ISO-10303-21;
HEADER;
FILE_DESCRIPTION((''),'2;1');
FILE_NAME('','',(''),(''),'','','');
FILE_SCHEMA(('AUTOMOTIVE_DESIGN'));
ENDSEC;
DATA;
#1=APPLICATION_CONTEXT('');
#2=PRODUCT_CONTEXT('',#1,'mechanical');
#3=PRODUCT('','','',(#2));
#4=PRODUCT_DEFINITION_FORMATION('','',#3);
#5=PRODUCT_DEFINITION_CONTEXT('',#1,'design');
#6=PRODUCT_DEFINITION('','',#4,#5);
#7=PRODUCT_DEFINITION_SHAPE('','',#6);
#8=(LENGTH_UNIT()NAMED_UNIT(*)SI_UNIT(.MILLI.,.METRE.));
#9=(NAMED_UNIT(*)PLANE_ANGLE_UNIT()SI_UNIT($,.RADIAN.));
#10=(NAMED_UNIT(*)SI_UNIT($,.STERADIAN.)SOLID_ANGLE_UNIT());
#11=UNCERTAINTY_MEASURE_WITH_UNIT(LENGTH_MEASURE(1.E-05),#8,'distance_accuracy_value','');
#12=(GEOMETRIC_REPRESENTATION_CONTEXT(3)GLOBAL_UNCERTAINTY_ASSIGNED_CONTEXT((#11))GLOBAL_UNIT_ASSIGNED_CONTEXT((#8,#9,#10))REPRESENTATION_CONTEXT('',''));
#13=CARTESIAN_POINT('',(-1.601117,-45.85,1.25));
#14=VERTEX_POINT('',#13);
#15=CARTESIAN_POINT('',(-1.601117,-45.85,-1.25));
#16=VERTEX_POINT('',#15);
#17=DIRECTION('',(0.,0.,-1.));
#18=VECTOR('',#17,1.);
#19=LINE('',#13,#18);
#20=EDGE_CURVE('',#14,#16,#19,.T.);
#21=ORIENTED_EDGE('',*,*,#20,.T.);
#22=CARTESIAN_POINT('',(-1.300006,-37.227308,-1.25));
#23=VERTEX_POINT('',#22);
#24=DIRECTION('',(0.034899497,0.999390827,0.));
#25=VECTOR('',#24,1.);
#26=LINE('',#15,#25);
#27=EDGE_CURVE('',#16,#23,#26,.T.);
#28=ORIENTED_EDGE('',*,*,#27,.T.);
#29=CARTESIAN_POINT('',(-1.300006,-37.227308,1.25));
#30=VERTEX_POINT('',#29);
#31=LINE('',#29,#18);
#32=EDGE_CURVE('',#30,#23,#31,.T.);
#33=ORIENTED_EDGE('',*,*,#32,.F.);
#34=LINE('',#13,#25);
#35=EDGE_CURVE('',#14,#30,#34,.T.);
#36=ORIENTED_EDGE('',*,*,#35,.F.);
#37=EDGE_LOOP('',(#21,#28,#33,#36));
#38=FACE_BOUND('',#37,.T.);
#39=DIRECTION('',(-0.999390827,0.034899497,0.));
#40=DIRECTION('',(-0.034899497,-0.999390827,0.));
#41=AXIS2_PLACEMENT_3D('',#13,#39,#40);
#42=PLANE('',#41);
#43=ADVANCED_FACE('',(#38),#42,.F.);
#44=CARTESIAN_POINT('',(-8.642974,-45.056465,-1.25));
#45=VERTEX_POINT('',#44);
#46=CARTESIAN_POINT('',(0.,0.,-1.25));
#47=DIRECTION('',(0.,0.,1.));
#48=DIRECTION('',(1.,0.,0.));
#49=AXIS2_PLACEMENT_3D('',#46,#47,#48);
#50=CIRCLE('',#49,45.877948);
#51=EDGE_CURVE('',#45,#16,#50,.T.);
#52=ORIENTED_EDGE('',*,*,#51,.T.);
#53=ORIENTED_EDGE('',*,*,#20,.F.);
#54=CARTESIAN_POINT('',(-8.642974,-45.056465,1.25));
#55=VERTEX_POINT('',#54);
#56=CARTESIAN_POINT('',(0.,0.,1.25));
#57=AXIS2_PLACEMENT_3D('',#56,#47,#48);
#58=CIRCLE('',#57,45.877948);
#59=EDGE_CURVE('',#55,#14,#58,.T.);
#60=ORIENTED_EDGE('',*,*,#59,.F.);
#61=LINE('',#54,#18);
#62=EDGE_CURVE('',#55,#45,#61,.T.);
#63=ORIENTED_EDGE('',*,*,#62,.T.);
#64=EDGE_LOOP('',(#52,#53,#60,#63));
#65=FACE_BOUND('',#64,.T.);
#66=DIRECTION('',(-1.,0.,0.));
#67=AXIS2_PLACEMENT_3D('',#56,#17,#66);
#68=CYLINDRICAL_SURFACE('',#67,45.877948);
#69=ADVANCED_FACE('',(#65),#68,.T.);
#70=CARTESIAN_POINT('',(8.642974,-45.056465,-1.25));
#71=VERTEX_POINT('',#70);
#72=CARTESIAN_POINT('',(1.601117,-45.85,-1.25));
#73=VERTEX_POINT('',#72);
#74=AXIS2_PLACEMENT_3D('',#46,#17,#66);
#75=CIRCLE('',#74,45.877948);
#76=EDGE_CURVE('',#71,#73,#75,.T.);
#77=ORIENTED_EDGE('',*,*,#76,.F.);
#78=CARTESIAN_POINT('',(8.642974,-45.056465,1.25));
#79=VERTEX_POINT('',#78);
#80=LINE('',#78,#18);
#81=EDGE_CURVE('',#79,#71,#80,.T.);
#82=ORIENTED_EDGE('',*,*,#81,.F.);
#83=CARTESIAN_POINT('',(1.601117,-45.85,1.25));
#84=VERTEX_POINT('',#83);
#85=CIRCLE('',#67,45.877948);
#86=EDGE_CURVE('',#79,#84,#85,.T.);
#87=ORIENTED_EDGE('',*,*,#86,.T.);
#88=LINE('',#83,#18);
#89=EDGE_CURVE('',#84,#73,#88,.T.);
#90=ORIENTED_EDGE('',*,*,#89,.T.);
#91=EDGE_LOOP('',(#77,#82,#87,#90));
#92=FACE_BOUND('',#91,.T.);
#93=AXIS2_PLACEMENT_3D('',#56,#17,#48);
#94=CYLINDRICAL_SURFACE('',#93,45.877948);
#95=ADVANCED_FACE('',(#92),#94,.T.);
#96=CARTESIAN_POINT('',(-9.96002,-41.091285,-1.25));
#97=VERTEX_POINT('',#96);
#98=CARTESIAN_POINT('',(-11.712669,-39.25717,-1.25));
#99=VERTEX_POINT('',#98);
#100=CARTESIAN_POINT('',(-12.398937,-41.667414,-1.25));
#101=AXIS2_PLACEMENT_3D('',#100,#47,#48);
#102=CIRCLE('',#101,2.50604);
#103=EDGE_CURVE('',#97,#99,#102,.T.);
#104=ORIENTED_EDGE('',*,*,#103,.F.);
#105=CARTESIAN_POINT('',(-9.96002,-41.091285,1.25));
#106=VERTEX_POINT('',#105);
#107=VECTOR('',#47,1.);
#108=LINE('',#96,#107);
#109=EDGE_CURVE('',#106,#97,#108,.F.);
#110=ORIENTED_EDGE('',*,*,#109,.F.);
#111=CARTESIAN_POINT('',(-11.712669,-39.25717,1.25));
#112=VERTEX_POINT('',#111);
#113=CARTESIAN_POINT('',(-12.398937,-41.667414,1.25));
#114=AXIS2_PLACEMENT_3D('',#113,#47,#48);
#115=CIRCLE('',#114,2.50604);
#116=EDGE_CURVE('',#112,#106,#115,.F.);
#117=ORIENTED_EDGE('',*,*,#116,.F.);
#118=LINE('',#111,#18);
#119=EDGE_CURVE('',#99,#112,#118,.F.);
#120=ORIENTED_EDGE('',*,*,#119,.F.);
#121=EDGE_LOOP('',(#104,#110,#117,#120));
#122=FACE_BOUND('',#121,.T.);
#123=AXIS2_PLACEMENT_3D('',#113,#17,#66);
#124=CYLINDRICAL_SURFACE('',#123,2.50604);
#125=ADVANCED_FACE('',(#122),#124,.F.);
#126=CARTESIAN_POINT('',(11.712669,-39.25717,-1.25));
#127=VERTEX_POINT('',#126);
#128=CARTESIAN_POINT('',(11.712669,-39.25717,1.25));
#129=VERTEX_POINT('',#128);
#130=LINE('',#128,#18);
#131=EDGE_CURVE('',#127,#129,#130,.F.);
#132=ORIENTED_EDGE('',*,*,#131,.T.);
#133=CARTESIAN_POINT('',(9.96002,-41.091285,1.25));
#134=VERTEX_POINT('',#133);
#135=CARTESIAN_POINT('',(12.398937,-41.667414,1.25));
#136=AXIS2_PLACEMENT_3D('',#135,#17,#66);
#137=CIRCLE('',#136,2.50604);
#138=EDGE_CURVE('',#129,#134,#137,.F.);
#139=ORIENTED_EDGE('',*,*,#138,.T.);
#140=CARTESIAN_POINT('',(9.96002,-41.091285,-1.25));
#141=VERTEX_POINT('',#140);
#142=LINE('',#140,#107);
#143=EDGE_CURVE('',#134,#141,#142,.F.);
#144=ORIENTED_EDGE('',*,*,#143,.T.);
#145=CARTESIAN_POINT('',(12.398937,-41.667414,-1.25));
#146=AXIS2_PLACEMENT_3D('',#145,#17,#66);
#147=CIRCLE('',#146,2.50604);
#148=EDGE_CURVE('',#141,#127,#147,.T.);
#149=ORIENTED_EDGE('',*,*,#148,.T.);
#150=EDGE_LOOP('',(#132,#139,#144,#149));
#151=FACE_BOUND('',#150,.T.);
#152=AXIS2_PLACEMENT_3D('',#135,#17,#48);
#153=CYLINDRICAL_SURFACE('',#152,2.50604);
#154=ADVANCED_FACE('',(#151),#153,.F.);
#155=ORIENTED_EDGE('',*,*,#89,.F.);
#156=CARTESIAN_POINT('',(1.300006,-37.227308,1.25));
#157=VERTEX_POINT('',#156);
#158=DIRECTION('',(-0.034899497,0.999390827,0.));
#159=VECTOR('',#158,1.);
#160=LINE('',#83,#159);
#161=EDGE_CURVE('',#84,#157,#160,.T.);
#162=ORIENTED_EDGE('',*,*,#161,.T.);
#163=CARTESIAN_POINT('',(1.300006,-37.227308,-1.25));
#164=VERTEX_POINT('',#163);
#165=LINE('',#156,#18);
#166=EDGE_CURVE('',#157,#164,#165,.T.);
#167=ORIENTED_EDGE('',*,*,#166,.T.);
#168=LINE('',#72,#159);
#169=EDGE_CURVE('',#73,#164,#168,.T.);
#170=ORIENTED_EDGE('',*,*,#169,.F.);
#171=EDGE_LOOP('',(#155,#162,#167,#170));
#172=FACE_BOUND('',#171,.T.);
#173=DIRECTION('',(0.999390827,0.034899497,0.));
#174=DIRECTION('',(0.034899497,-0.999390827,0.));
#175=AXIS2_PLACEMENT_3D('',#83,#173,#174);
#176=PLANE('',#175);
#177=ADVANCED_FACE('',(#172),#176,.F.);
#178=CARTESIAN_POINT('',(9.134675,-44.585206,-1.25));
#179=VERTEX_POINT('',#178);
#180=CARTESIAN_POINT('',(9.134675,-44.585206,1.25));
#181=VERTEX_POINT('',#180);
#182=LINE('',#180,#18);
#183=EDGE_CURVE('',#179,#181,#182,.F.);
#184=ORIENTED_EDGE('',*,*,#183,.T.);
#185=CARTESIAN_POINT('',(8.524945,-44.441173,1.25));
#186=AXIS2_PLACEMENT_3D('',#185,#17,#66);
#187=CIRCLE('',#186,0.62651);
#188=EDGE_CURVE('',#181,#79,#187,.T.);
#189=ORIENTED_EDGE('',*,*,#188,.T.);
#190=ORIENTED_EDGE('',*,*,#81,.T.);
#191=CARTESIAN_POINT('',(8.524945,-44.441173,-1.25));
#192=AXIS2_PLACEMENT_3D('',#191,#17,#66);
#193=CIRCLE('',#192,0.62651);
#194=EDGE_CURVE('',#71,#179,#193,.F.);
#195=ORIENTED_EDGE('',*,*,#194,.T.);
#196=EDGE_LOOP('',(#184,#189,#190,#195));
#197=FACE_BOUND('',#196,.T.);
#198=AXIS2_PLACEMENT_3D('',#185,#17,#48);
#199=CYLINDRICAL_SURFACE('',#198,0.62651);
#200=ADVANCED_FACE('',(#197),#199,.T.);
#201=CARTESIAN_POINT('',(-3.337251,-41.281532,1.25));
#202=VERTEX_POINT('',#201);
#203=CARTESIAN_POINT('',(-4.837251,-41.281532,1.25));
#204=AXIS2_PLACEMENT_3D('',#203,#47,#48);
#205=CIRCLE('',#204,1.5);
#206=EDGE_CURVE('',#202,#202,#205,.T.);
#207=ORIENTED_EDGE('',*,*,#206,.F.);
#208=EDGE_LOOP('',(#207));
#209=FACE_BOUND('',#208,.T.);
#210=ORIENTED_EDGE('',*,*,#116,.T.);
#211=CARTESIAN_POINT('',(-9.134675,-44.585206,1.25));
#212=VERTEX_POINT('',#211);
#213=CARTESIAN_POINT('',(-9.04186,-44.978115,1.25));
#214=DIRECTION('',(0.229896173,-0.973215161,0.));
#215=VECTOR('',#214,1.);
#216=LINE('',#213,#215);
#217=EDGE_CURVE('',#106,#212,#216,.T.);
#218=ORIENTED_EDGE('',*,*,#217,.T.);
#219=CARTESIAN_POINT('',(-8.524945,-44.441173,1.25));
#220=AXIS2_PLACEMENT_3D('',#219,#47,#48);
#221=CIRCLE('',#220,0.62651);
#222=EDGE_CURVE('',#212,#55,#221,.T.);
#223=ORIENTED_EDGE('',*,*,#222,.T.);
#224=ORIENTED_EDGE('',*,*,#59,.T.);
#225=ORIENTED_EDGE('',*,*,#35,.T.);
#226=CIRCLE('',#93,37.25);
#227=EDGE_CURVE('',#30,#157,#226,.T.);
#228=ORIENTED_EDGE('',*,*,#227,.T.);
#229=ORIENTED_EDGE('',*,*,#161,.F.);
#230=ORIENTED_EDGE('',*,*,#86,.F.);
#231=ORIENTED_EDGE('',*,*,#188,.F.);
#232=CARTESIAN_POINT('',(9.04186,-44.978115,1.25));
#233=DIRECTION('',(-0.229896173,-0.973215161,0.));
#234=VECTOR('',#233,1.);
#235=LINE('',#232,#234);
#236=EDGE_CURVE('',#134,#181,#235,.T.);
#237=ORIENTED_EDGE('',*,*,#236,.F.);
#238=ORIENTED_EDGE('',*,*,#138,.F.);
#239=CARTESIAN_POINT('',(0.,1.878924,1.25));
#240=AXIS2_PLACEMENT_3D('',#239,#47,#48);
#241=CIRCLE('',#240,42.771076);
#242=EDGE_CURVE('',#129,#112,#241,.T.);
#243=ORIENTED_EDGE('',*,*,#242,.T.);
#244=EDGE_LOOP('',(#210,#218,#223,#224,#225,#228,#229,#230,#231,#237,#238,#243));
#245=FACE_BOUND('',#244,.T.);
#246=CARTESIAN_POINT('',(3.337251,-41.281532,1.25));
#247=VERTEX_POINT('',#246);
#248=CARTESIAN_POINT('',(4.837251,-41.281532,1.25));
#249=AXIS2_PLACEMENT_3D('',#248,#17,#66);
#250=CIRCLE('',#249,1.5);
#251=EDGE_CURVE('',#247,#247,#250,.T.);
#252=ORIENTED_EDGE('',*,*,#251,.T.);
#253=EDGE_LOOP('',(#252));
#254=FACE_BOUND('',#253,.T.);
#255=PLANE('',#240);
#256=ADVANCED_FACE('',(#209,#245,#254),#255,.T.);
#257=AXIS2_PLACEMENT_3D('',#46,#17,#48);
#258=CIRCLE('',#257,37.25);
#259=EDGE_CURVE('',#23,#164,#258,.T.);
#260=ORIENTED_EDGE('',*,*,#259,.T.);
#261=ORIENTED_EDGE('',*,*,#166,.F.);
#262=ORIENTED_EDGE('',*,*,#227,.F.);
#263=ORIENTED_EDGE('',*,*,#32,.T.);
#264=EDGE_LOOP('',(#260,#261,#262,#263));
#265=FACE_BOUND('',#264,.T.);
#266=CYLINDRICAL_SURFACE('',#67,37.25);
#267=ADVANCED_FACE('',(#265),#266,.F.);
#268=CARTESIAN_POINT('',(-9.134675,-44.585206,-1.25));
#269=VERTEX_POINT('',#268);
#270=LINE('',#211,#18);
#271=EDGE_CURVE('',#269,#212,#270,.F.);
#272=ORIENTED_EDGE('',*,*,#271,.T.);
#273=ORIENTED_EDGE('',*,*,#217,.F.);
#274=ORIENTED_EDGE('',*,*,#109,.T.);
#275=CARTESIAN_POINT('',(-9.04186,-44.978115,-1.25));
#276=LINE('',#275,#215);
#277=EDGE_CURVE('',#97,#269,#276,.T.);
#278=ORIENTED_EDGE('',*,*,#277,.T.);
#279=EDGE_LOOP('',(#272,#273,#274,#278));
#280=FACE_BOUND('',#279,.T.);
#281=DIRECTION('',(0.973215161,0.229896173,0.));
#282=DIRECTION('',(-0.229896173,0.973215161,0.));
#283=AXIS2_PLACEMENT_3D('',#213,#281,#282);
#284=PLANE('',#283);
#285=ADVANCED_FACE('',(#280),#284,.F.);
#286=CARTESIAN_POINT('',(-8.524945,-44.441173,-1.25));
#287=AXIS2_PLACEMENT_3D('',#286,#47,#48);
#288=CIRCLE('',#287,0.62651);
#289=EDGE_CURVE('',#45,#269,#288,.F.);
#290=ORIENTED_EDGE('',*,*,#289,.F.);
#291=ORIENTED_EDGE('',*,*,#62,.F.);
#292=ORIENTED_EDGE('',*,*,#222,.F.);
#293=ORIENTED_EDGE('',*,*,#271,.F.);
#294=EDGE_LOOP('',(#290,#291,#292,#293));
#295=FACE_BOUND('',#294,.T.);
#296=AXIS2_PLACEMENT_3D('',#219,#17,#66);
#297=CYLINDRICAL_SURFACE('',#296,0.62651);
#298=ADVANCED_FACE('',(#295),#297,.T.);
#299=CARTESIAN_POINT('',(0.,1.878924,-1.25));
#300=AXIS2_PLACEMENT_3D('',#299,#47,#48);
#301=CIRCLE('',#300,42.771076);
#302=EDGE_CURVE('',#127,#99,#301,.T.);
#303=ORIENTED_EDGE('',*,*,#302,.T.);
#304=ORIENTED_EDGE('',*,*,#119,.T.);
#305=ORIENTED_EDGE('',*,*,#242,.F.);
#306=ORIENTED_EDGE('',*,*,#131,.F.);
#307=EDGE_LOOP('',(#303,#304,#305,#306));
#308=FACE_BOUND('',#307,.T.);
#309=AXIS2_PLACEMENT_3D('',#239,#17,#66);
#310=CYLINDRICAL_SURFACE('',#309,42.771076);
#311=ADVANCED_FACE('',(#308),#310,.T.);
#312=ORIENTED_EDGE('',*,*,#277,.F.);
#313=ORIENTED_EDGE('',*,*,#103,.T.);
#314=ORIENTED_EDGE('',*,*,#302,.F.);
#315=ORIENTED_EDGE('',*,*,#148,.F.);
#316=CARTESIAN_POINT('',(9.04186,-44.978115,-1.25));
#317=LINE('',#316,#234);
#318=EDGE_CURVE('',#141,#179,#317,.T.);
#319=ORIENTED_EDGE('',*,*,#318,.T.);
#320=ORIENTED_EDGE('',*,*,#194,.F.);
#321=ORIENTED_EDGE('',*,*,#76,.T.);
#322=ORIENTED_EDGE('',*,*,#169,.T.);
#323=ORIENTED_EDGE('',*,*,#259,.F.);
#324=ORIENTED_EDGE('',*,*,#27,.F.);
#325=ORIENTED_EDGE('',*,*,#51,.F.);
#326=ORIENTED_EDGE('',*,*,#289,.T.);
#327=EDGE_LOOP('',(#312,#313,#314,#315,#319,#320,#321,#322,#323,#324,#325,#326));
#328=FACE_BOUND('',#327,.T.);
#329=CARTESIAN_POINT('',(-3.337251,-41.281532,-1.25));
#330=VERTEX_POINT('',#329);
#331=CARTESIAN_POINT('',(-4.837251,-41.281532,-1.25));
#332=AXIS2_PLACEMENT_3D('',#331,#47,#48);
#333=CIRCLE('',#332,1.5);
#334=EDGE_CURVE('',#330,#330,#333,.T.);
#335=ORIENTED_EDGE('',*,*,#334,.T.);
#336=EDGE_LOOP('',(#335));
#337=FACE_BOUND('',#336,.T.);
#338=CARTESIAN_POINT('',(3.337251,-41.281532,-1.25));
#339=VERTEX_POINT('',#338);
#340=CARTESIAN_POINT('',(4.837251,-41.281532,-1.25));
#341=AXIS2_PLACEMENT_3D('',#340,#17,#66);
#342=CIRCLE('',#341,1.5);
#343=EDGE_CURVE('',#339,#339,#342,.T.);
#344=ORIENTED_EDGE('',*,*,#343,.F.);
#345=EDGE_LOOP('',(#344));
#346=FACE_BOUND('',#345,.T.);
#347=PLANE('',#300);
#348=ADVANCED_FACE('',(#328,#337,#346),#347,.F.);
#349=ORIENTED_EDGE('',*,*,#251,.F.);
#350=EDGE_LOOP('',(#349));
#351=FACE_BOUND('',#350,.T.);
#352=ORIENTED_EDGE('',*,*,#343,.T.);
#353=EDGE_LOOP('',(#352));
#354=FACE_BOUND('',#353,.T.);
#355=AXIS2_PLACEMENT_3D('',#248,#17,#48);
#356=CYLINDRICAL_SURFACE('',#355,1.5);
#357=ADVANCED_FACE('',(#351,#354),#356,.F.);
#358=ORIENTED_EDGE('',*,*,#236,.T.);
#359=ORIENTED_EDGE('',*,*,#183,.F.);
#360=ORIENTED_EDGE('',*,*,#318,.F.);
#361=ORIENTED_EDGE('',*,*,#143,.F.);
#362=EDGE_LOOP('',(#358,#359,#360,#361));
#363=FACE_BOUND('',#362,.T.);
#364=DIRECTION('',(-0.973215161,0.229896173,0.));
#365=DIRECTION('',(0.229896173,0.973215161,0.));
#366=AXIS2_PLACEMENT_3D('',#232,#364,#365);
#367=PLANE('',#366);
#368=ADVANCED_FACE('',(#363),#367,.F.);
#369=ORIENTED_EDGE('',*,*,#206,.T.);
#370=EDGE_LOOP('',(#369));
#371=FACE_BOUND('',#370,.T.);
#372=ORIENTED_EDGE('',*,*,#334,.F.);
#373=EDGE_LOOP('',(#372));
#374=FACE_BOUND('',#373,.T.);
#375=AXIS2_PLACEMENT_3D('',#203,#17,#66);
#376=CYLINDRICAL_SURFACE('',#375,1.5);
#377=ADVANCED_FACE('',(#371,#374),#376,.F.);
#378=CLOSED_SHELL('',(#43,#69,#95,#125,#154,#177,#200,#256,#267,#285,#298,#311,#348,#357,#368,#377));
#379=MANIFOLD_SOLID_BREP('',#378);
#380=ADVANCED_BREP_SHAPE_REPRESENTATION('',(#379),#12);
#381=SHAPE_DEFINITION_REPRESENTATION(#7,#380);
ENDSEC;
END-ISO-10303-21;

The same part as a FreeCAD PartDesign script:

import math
import FreeCAD as App
import Part
import Sketcher
Q = App.Units.Quantity


def edges_at(feature, points):
    """Names of the edges that pass closest to the given points."""
    edges = feature.Shape.Edges
    near = lambda p: min(range(len(edges)), key=lambda i: edges[i].distToShape(Part.Vertex(*p))[0])
    return sorted({f"Edge{near(p) + 1}" for p in points})

doc = App.newDocument("Part")
params = doc.addObject("Spreadsheet::Sheet", "Params")
for row, (alias, value) in enumerate([
    ("sketch1_diameter", "3 mm"),
    ("sketch1_radius", "37.25 mm"),
    ("sketch1_height", "7.4 mm"),
    ("pad1_length", "2.5 mm"),
    ("fillet_radius", "2.50604 mm"),
    ("fillet2_radius", "0.62651 mm"),
], start=1):
    params.set(f"A{row}", alias)
    params.set(f"B{row}", "=" + value)
    params.setAlias(f"B{row}", alias)

body = doc.addObject("PartDesign::Body", "Body")

# Sketch on XY plane
sketch1 = body.newObject("Sketcher::SketchObject", "Sketch")
sketch1.AttachmentSupport = (doc.getObject("XY_Plane"), [""])
sketch1.MapMode = "FlatFace"
sketch1.addGeometry([
    Part.LineSegment(App.Vector(-10.3, -39.6, 0), App.Vector(-9, -45, 0)),  # 0
    Part.ArcOfCircle(Part.Circle(App.Vector(0, 0, 0), App.Vector(0, 0, 1), 45.9), math.radians(-101.37), math.radians(-92)),  # 1
    Part.LineSegment(App.Vector(-1.6, -45.9, 0), App.Vector(-1.3, -37.2, 0)),  # 2
    Part.ArcOfCircle(Part.Circle(App.Vector(0, 0, 0), App.Vector(0, 0, 1), 37.2), math.radians(90), math.radians(268)),  # 3
    Part.LineSegment(App.Vector(0, 37.2, 0), App.Vector(0, 44.6, 0)),  # 4
    Part.ArcOfCircle(Part.Circle(App.Vector(0, 1.9, 0), App.Vector(0, 0, 1), 42.8), math.radians(90), math.radians(256)),  # 5
    Part.Circle(App.Vector(-4.8, -41.3, 0), App.Vector(0, 0, 1), 1.5),  # 6
], False)
sketch1.addConstraint([
    Sketcher.Constraint("Coincident", 0, 2, 1, 1),
    Sketcher.Constraint("Coincident", 1, 2, 2, 1),
    Sketcher.Constraint("Coincident", 2, 2, 3, 2),
    Sketcher.Constraint("Coincident", 3, 1, 4, 1),
    Sketcher.Constraint("Coincident", 4, 2, 5, 1),
    Sketcher.Constraint("Coincident", 5, 2, 0, 1),
    Sketcher.Constraint("Vertical", 4),
    Sketcher.Constraint("Coincident", 1, 3, -1, 1),
    Sketcher.Constraint("Coincident", 3, 3, -1, 1),
    Sketcher.Constraint("PointOnObject", 5, 3, -2),
    Sketcher.Constraint("PointOnObject", 3, 1, -2),
    Sketcher.Constraint("Diameter", 6, 3.0),
    Sketcher.Constraint("Angle", 2, Q("88 deg")),
    Sketcher.Constraint("Radius", 3, 37.25),
    Sketcher.Constraint("DistanceY", 4, 1, 4, 2, 7.4),
    Sketcher.Constraint("DistanceY", 1, 2, -1, 1, 45.85),
    Sketcher.Constraint("Radius", 1, 45.877948),
    Sketcher.Constraint("Radius", 5, 42.771076),
    Sketcher.Constraint("DistanceX", 6, 3, -1, 1, 4.837251),
    Sketcher.Constraint("DistanceX", 0, 2, -1, 1, 9.04186),
    Sketcher.Constraint("DistanceY", 5, 2, -1, 1, 39.632262),
    Sketcher.Constraint("DistanceY", 6, 3, 5, 2, 1.649271),
])
sketch1.setExpression("Constraints[11]", "Params.sketch1_diameter")
sketch1.setExpression("Constraints[13]", "Params.sketch1_radius")
sketch1.setExpression("Constraints[14]", "Params.sketch1_height")
pad1 = body.newObject("PartDesign::Pad", "Pad")
pad1.Profile = sketch1
pad1.setExpression("Length", "Params.pad1_length")
pad1.Midplane = True
doc.recompute()

fillet = body.newObject("PartDesign::Fillet", "Fillet")
fillet.Base = (pad1, edges_at(pad1, [(-10.305, -39.632, 0)]))
fillet.setExpression("Radius", "Params.fillet_radius")
doc.recompute()

fillet2 = body.newObject("PartDesign::Fillet", "Fillet001")
fillet2.Base = (fillet, edges_at(fillet, [(-9.042, -44.978, 0)]))
fillet2.setExpression("Radius", "Params.fillet2_radius")
body2 = doc.addObject("PartDesign::Body", "Body001")
doc.recompute()

body2.BaseFeature = body
doc.recompute()

mirroring = doc.addObject("Part::Mirroring", "Mirroring")
mirroring.Source = body
mirroring.Base = App.Vector(0, 44.65, 1.25)
mirroring.Normal = App.Vector(-1, 0, 0)
body3 = doc.addObject("PartDesign::Body", "Body002")
body3.BaseFeature = mirroring
boolean = body2.newObject("PartDesign::Boolean", "Boolean")
boolean.Type = "Fuse"
boolean.addObjects([body3])
doc.recompute()
mirroring.Visibility = False

doc.recompute()
